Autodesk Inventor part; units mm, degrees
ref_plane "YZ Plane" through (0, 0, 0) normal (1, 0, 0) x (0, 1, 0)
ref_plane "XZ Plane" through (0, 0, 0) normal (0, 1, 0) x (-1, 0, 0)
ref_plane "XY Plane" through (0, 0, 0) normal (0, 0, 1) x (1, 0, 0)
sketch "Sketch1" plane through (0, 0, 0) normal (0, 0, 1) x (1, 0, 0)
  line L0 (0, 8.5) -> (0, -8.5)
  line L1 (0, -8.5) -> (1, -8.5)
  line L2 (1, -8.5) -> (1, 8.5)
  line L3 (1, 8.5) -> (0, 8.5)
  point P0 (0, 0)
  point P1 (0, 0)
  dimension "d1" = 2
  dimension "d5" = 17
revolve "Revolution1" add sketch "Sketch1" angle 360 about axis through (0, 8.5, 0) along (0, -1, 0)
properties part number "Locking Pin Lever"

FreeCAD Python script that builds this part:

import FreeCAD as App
import Part
import Sketcher

V = App.Vector

doc = App.newDocument("Part")
params = doc.addObject("Spreadsheet::Sheet", "Params")
for row, (alias, value) in enumerate([
    ("sketch1_height", "17 mm"),
    ("sketch1_width", "1 mm"),
    ("revolution_angle", "360 deg"),
], start=1):
    params.set(f"A{row}", alias)
    params.set(f"B{row}", "=" + value)
    params.setAlias(f"B{row}", alias)

body = doc.addObject("PartDesign::Body", "Body")

sketch1 = body.newObject("Sketcher::SketchObject", "Sketch")
sketch1.AttachmentSupport = (doc.getObject("XY_Plane"), [""])
sketch1.MapMode = "FlatFace"
sketch1.addGeometry([
    Part.LineSegment(V(1, 8.5, 0), V(0, 8.5, 0)),
    Part.LineSegment(V(0, 8.5, 0), V(0, -8.5, 0)),
    Part.LineSegment(V(0, -8.5, 0), V(1, -8.5, 0)),
    Part.LineSegment(V(1, -8.5, 0), V(1, 8.5, 0)),
], False)
sketch1.addConstraint([
    Sketcher.Constraint("Coincident", 0, 2, 1, 1),
    Sketcher.Constraint("Coincident", 1, 2, 2, 1),
    Sketcher.Constraint("Coincident", 2, 2, 3, 1),
    Sketcher.Constraint("Coincident", 3, 2, 0, 1),
    Sketcher.Constraint("Horizontal", 0),
    Sketcher.Constraint("Vertical", 1),
    Sketcher.Constraint("Horizontal", 2),
    Sketcher.Constraint("Vertical", 3),
    Sketcher.Constraint("Symmetric", 0, 2, 1, 2, -1, 1),
    Sketcher.Constraint("DistanceY", 1, 2, 1, 1, 17.0),
    Sketcher.Constraint("DistanceX", 0, 2, 0, 1, 1.0),
])
sketch1.setExpression("Constraints[9]", "Params.sketch1_height")
sketch1.setExpression("Constraints[10]", "Params.sketch1_width")
revolution = body.newObject("PartDesign::Revolution", "Revolution")
revolution.Profile = sketch1
revolution.ReferenceAxis = (sketch1, ["V_Axis"])
revolution.setExpression("Angle", "Params.revolution_angle")

doc.recompute()
